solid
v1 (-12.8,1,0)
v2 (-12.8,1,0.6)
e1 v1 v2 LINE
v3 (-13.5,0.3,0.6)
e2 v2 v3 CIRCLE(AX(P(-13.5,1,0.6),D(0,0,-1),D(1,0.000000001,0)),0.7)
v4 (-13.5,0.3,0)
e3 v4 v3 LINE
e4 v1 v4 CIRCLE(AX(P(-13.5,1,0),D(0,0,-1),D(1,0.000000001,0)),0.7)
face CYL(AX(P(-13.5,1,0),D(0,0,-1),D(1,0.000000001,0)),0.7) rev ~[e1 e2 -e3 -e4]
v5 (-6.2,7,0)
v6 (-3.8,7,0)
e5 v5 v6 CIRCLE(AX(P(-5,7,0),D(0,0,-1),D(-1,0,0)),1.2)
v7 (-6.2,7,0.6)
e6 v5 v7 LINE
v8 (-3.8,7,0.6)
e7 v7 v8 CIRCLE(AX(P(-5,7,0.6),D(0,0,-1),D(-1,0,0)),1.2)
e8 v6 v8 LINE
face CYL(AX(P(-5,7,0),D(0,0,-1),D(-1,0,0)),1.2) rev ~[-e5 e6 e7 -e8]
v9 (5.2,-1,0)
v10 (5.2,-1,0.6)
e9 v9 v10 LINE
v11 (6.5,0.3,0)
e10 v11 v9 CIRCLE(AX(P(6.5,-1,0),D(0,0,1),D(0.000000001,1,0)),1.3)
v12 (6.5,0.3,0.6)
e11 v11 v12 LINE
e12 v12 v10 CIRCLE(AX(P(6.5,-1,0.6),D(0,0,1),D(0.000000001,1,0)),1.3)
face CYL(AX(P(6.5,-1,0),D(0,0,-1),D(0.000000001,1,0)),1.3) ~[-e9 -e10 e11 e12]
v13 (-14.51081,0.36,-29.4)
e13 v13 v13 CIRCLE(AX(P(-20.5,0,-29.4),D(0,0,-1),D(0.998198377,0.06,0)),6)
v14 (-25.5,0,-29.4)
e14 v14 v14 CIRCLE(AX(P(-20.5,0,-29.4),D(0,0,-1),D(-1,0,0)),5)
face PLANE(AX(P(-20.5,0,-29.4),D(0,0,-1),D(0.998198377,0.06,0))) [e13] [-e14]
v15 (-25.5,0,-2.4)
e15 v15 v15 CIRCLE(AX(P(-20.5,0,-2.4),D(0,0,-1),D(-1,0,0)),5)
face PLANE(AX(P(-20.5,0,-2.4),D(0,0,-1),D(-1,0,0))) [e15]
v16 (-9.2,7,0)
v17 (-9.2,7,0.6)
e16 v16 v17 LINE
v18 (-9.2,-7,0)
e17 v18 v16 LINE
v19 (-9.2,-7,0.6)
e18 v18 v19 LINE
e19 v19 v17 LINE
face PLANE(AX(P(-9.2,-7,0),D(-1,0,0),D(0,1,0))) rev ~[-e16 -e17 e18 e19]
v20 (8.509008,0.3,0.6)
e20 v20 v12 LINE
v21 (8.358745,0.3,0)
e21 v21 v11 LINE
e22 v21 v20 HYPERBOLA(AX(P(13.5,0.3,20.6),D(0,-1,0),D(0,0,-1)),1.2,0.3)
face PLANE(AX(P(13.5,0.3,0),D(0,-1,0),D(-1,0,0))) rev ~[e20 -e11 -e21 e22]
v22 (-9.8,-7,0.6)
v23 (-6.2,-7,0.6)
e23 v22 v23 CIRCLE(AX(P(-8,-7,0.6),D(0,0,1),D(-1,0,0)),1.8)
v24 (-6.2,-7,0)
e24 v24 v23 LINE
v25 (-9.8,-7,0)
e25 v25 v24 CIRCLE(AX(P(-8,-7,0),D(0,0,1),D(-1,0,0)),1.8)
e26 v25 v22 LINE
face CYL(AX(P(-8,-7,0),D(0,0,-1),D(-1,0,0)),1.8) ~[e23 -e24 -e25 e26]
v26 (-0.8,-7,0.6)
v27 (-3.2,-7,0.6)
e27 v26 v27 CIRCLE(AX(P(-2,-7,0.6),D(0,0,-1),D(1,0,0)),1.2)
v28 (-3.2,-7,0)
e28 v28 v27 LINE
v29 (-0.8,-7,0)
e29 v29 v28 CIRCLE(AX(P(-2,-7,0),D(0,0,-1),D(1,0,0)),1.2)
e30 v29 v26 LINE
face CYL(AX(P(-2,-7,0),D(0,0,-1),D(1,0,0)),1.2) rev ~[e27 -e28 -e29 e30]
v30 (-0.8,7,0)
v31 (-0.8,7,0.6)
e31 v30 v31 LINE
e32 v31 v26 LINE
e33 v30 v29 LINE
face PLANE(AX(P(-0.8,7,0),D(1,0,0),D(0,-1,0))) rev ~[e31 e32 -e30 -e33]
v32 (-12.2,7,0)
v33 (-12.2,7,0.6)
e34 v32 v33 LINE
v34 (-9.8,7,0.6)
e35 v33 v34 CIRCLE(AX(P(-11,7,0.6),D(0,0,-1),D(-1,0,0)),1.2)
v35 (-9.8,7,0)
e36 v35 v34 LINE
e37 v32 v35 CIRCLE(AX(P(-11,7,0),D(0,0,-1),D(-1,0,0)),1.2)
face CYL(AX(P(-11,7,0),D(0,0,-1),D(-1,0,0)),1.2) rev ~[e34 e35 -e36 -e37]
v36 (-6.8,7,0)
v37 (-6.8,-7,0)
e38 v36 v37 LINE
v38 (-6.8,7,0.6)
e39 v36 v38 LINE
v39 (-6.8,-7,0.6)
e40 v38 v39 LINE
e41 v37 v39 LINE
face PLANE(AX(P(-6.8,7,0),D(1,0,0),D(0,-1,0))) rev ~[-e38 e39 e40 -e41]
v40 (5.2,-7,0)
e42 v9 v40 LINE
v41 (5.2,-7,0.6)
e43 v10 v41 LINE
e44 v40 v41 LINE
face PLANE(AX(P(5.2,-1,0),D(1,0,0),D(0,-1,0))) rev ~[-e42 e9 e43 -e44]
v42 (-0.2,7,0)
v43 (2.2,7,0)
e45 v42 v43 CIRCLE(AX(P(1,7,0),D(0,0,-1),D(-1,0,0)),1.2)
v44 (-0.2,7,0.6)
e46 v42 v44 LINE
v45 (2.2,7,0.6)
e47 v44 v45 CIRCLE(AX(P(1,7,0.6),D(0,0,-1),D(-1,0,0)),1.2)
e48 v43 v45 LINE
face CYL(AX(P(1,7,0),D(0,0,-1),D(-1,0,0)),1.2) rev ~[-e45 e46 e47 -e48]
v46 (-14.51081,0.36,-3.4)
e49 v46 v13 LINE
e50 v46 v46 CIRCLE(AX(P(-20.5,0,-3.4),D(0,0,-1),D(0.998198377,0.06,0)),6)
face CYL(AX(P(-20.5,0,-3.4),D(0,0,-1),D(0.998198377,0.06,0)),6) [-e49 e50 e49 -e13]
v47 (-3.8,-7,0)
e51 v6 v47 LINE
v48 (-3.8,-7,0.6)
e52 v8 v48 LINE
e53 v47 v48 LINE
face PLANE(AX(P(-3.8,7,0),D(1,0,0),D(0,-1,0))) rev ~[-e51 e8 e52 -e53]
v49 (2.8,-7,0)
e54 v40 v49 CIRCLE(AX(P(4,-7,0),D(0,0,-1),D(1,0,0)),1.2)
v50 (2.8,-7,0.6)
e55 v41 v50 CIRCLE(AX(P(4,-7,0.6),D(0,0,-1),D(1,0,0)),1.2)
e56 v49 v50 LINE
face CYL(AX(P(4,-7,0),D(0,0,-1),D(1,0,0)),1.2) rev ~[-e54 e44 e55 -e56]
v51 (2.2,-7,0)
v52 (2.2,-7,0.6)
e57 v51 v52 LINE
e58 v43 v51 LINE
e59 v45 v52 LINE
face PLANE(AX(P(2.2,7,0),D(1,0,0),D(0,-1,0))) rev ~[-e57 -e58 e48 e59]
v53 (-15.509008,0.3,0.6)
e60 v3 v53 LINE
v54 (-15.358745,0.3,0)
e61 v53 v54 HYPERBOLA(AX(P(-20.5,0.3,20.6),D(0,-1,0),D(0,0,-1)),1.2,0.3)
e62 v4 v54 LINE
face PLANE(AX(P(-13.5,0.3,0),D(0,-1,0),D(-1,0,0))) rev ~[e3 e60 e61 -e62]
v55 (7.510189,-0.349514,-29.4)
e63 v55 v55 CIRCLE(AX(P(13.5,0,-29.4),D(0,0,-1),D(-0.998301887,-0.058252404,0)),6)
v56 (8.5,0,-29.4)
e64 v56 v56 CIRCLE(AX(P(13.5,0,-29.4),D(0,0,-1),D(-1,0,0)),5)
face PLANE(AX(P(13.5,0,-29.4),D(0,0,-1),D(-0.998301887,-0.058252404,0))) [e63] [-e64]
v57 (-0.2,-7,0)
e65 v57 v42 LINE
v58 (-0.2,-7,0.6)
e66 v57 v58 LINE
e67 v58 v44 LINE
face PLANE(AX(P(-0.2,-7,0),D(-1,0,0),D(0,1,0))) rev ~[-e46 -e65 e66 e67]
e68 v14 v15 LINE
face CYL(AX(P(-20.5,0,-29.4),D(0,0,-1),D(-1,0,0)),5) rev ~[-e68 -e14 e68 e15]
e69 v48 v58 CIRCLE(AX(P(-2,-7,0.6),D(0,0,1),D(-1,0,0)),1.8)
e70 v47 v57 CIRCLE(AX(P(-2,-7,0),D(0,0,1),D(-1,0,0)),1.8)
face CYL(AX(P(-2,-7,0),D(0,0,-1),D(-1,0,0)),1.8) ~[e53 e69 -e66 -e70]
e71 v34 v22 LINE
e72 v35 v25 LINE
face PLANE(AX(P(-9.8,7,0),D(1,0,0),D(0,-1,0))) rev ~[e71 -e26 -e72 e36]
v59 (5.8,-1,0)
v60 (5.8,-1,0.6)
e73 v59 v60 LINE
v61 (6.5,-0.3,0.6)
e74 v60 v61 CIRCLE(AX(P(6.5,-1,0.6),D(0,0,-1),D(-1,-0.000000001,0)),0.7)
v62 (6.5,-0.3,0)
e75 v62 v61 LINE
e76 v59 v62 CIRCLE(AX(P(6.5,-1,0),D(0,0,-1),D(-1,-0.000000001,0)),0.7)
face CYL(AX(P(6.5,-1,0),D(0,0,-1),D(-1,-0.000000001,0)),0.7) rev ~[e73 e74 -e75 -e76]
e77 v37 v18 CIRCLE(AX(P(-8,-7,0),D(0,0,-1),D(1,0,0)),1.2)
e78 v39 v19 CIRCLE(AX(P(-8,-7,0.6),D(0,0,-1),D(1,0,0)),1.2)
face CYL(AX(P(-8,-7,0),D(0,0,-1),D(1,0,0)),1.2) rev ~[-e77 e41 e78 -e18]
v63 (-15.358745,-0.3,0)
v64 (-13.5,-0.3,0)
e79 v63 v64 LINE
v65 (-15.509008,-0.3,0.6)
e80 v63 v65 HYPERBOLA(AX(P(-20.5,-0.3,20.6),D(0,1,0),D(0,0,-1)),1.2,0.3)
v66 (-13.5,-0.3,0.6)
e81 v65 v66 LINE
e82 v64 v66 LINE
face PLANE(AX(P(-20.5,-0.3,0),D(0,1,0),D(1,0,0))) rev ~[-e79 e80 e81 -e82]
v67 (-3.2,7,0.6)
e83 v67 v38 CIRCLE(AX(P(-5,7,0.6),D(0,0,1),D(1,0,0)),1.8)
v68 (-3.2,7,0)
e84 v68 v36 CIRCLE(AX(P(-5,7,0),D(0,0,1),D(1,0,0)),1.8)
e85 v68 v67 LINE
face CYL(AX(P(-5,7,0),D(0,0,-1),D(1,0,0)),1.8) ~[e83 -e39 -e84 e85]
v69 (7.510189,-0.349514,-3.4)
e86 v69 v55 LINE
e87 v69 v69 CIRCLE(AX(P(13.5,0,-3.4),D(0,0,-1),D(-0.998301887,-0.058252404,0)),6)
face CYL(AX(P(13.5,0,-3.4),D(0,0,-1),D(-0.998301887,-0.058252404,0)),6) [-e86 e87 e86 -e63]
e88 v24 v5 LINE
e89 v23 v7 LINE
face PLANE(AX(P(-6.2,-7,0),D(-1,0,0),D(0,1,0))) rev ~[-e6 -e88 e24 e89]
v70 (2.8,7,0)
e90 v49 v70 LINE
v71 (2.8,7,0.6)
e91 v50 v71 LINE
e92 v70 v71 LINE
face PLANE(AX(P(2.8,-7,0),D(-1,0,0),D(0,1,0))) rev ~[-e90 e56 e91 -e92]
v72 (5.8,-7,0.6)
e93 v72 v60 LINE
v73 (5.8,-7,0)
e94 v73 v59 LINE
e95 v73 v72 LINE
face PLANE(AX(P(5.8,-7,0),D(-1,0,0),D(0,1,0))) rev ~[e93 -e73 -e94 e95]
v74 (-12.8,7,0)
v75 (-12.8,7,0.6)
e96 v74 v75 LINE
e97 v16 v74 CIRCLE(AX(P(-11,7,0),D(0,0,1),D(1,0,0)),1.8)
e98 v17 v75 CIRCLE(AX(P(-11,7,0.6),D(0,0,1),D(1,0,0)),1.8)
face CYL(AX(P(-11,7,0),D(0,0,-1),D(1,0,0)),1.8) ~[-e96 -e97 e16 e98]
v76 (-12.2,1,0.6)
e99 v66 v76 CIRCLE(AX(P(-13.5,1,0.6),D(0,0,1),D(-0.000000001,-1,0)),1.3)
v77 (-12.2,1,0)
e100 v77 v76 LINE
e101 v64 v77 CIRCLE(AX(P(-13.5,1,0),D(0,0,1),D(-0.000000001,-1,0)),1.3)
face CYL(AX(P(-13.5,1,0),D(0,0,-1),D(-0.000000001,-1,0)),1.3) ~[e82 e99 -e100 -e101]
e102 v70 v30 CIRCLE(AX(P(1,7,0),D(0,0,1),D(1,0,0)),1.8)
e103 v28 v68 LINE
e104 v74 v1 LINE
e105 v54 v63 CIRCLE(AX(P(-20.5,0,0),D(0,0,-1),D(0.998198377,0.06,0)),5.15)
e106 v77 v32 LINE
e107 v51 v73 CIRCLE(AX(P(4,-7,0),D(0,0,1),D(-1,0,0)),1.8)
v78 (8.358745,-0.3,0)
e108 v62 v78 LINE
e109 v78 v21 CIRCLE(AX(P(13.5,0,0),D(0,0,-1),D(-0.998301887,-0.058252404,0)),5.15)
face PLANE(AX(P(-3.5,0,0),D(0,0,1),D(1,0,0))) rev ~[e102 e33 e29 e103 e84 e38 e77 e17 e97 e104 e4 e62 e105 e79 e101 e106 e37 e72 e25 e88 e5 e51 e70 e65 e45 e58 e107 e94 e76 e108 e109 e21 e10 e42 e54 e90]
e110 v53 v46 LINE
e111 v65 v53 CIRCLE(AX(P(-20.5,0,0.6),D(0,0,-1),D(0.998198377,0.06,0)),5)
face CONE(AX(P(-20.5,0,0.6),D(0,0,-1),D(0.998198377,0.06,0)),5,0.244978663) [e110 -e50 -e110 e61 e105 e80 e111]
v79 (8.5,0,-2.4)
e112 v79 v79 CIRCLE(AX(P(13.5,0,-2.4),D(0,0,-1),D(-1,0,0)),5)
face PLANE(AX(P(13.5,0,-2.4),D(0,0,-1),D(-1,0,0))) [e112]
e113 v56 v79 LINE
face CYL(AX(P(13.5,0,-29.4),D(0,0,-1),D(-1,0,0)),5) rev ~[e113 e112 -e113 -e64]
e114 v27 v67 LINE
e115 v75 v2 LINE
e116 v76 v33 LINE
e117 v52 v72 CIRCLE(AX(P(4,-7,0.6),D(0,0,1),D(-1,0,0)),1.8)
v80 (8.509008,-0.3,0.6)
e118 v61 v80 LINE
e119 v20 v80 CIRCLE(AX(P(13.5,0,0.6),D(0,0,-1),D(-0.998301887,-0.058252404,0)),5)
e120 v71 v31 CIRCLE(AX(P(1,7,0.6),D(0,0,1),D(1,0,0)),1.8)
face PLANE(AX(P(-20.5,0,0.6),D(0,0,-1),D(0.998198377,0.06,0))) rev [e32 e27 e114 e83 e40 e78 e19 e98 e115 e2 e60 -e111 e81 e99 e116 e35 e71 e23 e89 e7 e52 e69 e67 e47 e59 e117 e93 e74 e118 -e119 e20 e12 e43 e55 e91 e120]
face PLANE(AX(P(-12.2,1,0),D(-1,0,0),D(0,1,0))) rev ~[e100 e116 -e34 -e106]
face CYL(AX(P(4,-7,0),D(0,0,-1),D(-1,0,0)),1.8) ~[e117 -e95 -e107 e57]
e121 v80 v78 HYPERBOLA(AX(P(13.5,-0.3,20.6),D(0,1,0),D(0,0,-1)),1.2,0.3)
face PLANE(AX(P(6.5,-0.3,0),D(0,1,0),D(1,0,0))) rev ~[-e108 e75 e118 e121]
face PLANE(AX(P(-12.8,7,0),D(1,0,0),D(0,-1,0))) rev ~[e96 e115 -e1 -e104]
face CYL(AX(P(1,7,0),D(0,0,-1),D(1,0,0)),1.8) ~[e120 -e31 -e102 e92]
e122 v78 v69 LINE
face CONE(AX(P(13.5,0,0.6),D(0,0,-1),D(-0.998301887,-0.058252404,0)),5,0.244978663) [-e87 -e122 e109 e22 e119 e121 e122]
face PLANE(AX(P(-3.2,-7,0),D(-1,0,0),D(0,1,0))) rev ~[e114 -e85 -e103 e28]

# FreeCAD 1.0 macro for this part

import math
import FreeCAD as App
import Part
import Sketcher
from FreeCAD import Vector
Q = App.Units.Quantity


def add_polygon(sketch, points):
    """Adds a closed chain of lines whose ends are joined by coincident constraints."""
    first, n = sketch.GeometryCount, len(points)
    for a, b in zip(points, points[1:] + points[:1]):
        sketch.addGeometry(Part.LineSegment(App.Vector(*a, 0), App.Vector(*b, 0)), False)
    for i in range(n):
        sketch.addConstraint(Sketcher.Constraint("Coincident", first + i, 2, first + (i + 1) % n, 1))

doc = App.newDocument("Part")
body = doc.addObject("PartDesign::Body", "Body")

# Sketch on XY plane
sketch1 = doc.addObject("Sketcher::SketchObject", "Sketch")
body.addObject(sketch1)
sketch1.AttachmentSupport = (doc.XY_Plane, [""])
sketch1.MapMode = "FlatFace"
sketch1.addGeometry([
    Part.LineSegment(Vector(-20.5, -0.3, 0), Vector(-13.5, -0.3, 0)),  # 0
    Part.ArcOfCircle(Part.Circle(Vector(-13.5, 1, 0), Vector(0, 0, 1), 1.3), math.radians(-90), math.radians(0)),  # 1
    Part.LineSegment(Vector(-12.2, 1, 0), Vector(-12.2, 7, 0)),  # 2
    Part.ArcOfCircle(Part.Circle(Vector(-11, 7, 0), Vector(0, 0, 1), 1.2), math.radians(0), math.radians(180)),  # 3
    Part.LineSegment(Vector(-9.8, 7, 0), Vector(-9.8, -7, 0)),  # 4
    Part.ArcOfCircle(Part.Circle(Vector(-8, -7, 0), Vector(0, 0, 1), 1.8), math.radians(180), math.radians(360)),  # 5
    Part.LineSegment(Vector(-6.2, -7, 0), Vector(-6.2, 7, 0)),  # 6
    Part.ArcOfCircle(Part.Circle(Vector(-5, 7, 0), Vector(0, 0, 1), 1.2), math.radians(0), math.radians(180)),  # 7
    Part.LineSegment(Vector(-3.8, 7, 0), Vector(-3.8, -7, 0)),  # 8
    Part.ArcOfCircle(Part.Circle(Vector(-2, -7, 0), Vector(0, 0, 1), 1.8), math.radians(180), math.radians(360)),  # 9
    Part.LineSegment(Vector(-0.2, -7, 0), Vector(-0.2, 7, 0)),  # 10
    Part.ArcOfCircle(Part.Circle(Vector(1, 7, 0), Vector(0, 0, 1), 1.2), math.radians(0), math.radians(180)),  # 11
    Part.LineSegment(Vector(2.2, 7, 0), Vector(2.2, -7, 0)),  # 12
    Part.ArcOfCircle(Part.Circle(Vector(4, -7, 0), Vector(0, 0, 1), 1.8), math.radians(180), math.radians(360)),  # 13
    Part.LineSegment(Vector(5.8, -7, 0), Vector(5.8, -1, 0)),  # 14
    Part.ArcOfCircle(Part.Circle(Vector(6.5, -1, 0), Vector(0, 0, 1), 0.7), math.radians(90), math.radians(180)),  # 15
    Part.LineSegment(Vector(6.5, -0.3, 0), Vector(13.5, -0.3, 0)),  # 16
    Part.ArcOfCircle(Part.Circle(Vector(13.5, 0, 0), Vector(0, 0, 1), 0.3), math.radians(-90), math.radians(90)),  # 17
    Part.LineSegment(Vector(13.5, 0.3, 0), Vector(6.5, 0.3, 0)),  # 18
    Part.ArcOfCircle(Part.Circle(Vector(6.5, -1, 0), Vector(0, 0, 1), 1.3), math.radians(90), math.radians(180)),  # 19
    Part.LineSegment(Vector(5.2, -1, 0), Vector(5.2, -7, 0)),  # 20
    Part.ArcOfCircle(Part.Circle(Vector(4, -7, 0), Vector(0, 0, 1), 1.2), math.radians(180), math.radians(360)),  # 21
    Part.LineSegment(Vector(2.8, -7, 0), Vector(2.8, 7, 0)),  # 22
    Part.ArcOfCircle(Part.Circle(Vector(1, 7, 0), Vector(0, 0, 1), 1.8), math.radians(0), math.radians(180)),  # 23
    Part.LineSegment(Vector(-0.8, 7, 0), Vector(-0.8, -7, 0)),  # 24
    Part.ArcOfCircle(Part.Circle(Vector(-2, -7, 0), Vector(0, 0, 1), 1.2), math.radians(180), math.radians(360)),  # 25
    Part.LineSegment(Vector(-3.2, -7, 0), Vector(-3.2, 7, 0)),  # 26
    Part.ArcOfCircle(Part.Circle(Vector(-5, 7, 0), Vector(0, 0, 1), 1.8), math.radians(0), math.radians(180)),  # 27
    Part.LineSegment(Vector(-6.8, 7, 0), Vector(-6.8, -7, 0)),  # 28
    Part.ArcOfCircle(Part.Circle(Vector(-8, -7, 0), Vector(0, 0, 1), 1.2), math.radians(180), math.radians(360)),  # 29
    Part.LineSegment(Vector(-9.2, -7, 0), Vector(-9.2, 7, 0)),  # 30
    Part.ArcOfCircle(Part.Circle(Vector(-11, 7, 0), Vector(0, 0, 1), 1.8), math.radians(0), math.radians(180)),  # 31
    Part.LineSegment(Vector(-12.8, 7, 0), Vector(-12.8, 1, 0)),  # 32
    Part.ArcOfCircle(Part.Circle(Vector(-13.5, 1, 0), Vector(0, 0, 1), 0.7), math.radians(-90), math.radians(0)),  # 33
    Part.LineSegment(Vector(-13.5, 0.3, 0), Vector(-20.5, 0.3, 0)),  # 34
    Part.ArcOfCircle(Part.Circle(Vector(-20.5, 0, 0), Vector(0, 0, 1), 0.3), math.radians(90), math.radians(270)),  # 35
], False)
sketch1.addConstraint([
    Sketcher.Constraint("Tangent", 0, 2, 1, 1),
    Sketcher.Constraint("Tangent", 1, 2, 2, 1),
    Sketcher.Constraint("Tangent", 2, 2, 3, 2),
    Sketcher.Constraint("Tangent", 3, 1, 4, 1),
    Sketcher.Constraint("Tangent", 4, 2, 5, 1),
    Sketcher.Constraint("Tangent", 5, 2, 6, 1),
    Sketcher.Constraint("Tangent", 6, 2, 7, 2),
    Sketcher.Constraint("Tangent", 7, 1, 8, 1),
    Sketcher.Constraint("Tangent", 8, 2, 9, 1),
    Sketcher.Constraint("Tangent", 9, 2, 10, 1),
    Sketcher.Constraint("Tangent", 10, 2, 11, 2),
    Sketcher.Constraint("Tangent", 11, 1, 12, 1),
    Sketcher.Constraint("Tangent", 12, 2, 13, 1),
    Sketcher.Constraint("Tangent", 13, 2, 14, 1),
    Sketcher.Constraint("Tangent", 14, 2, 15, 2),
    Sketcher.Constraint("Tangent", 15, 1, 16, 1),
    Sketcher.Constraint("Tangent", 16, 2, 17, 1),
    Sketcher.Constraint("Tangent", 17, 2, 18, 1),
    Sketcher.Constraint("Tangent", 18, 2, 19, 1),
    Sketcher.Constraint("Tangent", 19, 2, 20, 1),
    Sketcher.Constraint("Tangent", 20, 2, 21, 2),
    Sketcher.Constraint("Tangent", 21, 1, 22, 1),
    Sketcher.Constraint("Tangent", 22, 2, 23, 1),
    Sketcher.Constraint("Tangent", 23, 2, 24, 1),
    Sketcher.Constraint("Tangent", 24, 2, 25, 2),
    Sketcher.Constraint("Tangent", 25, 1, 26, 1),
    Sketcher.Constraint("Tangent", 26, 2, 27, 1),
    Sketcher.Constraint("Tangent", 27, 2, 28, 1),
    Sketcher.Constraint("Tangent", 28, 2, 29, 2),
    Sketcher.Constraint("Tangent", 29, 1, 30, 1),
    Sketcher.Constraint("Tangent", 30, 2, 31, 1),
    Sketcher.Constraint("Tangent", 31, 2, 32, 1),
    Sketcher.Constraint("Tangent", 32, 2, 33, 2),
    Sketcher.Constraint("Tangent", 33, 1, 34, 1),
    Sketcher.Constraint("Tangent", 34, 2, 35, 1),
    Sketcher.Constraint("Tangent", 35, 2, 0, 1),
    Sketcher.Constraint("Horizontal", 0),
    Sketcher.Constraint("Vertical", 2),
    Sketcher.Constraint("Vertical", 4),
    Sketcher.Constraint("Vertical", 6),
    Sketcher.Constraint("Vertical", 8),
    Sketcher.Constraint("Vertical", 10),
    Sketcher.Constraint("Vertical", 12),
    Sketcher.Constraint("Vertical", 14),
    Sketcher.Constraint("Horizontal", 16),
    Sketcher.Constraint("Horizontal", 18),
    Sketcher.Constraint("Vertical", 20),
    Sketcher.Constraint("Vertical", 22),
    Sketcher.Constraint("Vertical", 24),
    Sketcher.Constraint("Vertical", 26),
    Sketcher.Constraint("Vertical", 28),
    Sketcher.Constraint("Vertical", 30),
    Sketcher.Constraint("Vertical", 32),
    Sketcher.Constraint("Horizontal", 34),
    Sketcher.Constraint("Coincident", 19, 3, 15, 3),
    Sketcher.Constraint("Coincident", 21, 3, 13, 3),
    Sketcher.Constraint("Coincident", 23, 3, 11, 3),
    Sketcher.Constraint("Coincident", 25, 3, 9, 3),
    Sketcher.Constraint("Coincident", 27, 3, 7, 3),
    Sketcher.Constraint("Coincident", 29, 3, 5, 3),
    Sketcher.Constraint("Coincident", 31, 3, 3, 3),
    Sketcher.Constraint("Coincident", 33, 3, 1, 3),
    Sketcher.Constraint("Equal", 3, 7),
    Sketcher.Constraint("Equal", 5, 9),
    Sketcher.Constraint("Equal", 7, 11),
    Sketcher.Constraint("Equal", 9, 13),
    Sketcher.Constraint("Equal", 1, 19),
    Sketcher.Constraint("Equal", 11, 21),
    Sketcher.Constraint("Symmetric", 0, 2, 17, 2, -1, 1),
    Sketcher.Constraint("PointOnObject", 17, 3, -1),
    Sketcher.Constraint("Horizontal", 3, 3, 7, 3),
    Sketcher.Constraint("Horizontal", 5, 3, 9, 3),
    Sketcher.Constraint("Horizontal", 7, 3, 11, 3),
    Sketcher.Constraint("Horizontal", 9, 3, 13, 3),
    Sketcher.Constraint("Equal", 0, 16),
    Sketcher.Constraint("Equal", 2, 14),
    Sketcher.Constraint("Radius", 1, Q("1.3 mm")),
    Sketcher.Constraint("Radius", 3, Q("1.2 mm")),
    Sketcher.Constraint("Radius", 5, Q("1.8 mm")),
    Sketcher.Constraint("DistanceX", 0, 1, 0, 2, Q("7 mm")),
    Sketcher.Constraint("DistanceY", 2, 1, 2, 2, Q("6 mm")),
])
pad1 = doc.addObject("PartDesign::Pad", "Pad")
body.addObject(pad1)
pad1.Profile = sketch1
pad1.Length = 0.6

# Sketch on XZ plane
sketch2 = doc.addObject("Sketcher::SketchObject", "Sketch001")
body.addObject(sketch2)
sketch2.AttachmentSupport = (doc.XZ_Plane, [""])
sketch2.MapMode = "FlatFace"
add_polygon(sketch2, [(-25.5, 0.6), (-20.5, 0.6), (-20.5, -29.4), (-26.5, -29.4), (-26.5, -3.4)])  # lines 0-4
sketch2.addGeometry(Part.LineSegment(Vector(-20.5, 0.6, 0), Vector(-20.5, -29.4, 0)), True)  # axis
sketch2.addConstraint([
    Sketcher.Constraint("Horizontal", 0),
    Sketcher.Constraint("Vertical", 1),
    Sketcher.Constraint("Horizontal", 2),
    Sketcher.Constraint("Vertical", 3),
    Sketcher.Constraint("Vertical", 5),
    Sketcher.Constraint("Coincident", 5, 1, 0, 2),
    Sketcher.Constraint("Horizontal", 2, 2, 5, 2),
    Sketcher.Constraint("DistanceX", 0, 1, 0, 2, Q("5 mm")),
    Sketcher.Constraint("DistanceX", 2, 2, 2, 1, Q("6 mm")),
    Sketcher.Constraint("DistanceY", 1, 2, 1, 1, Q("30 mm")),
    Sketcher.Constraint("DistanceY", 3, 1, 3, 2, Q("26 mm")),
    Sketcher.Constraint("DistanceX", 0, 2, -1, 1, Q("20.5 mm")),
    Sketcher.Constraint("DistanceY", -1, 1, 0, 2, Q("0.6 mm")),
])
revolution = doc.addObject("PartDesign::Revolution", "Revolution")
body.addObject(revolution)
revolution.Profile = sketch2
revolution.ReferenceAxis = (sketch2, ["Axis0"])
revolution.Angle = 360

# Sketch on XZ plane
sketch3 = doc.addObject("Sketcher::SketchObject", "Sketch002")
body.addObject(sketch3)
sketch3.AttachmentSupport = (doc.XZ_Plane, [""])
sketch3.MapMode = "FlatFace"
add_polygon(sketch3, [(13.5, 0.6), (18.5, 0.6), (19.5, -3.4), (19.5, -29.4), (13.5, -29.4)])  # lines 0-4
sketch3.addGeometry(Part.LineSegment(Vector(13.5, 0.6, 0), Vector(13.5, -29.4, 0)), True)  # axis
sketch3.addConstraint([
    Sketcher.Constraint("Horizontal", 0),
    Sketcher.Constraint("Vertical", 2),
    Sketcher.Constraint("Horizontal", 3),
    Sketcher.Constraint("Vertical", 4),
    Sketcher.Constraint("Vertical", 5),
    Sketcher.Constraint("Coincident", 5, 1, 4, 2),
    Sketcher.Constraint("Horizontal", 2, 2, 5, 2),
    Sketcher.Constraint("DistanceX", 0, 1, 0, 2, Q("5 mm")),
    Sketcher.Constraint("DistanceX", 3, 2, 3, 1, Q("6 mm")),
    Sketcher.Constraint("DistanceY", 2, 2, 2, 1, Q("26 mm")),
    Sketcher.Constraint("DistanceY", 4, 1, 4, 2, Q("30 mm")),
    Sketcher.Constraint("DistanceX", -1, 1, 0, 2, Q("18.5 mm")),
    Sketcher.Constraint("DistanceY", -1, 1, 0, 2, Q("0.6 mm")),
])
revolution2 = doc.addObject("PartDesign::Revolution", "Revolution001")
body.addObject(revolution2)
revolution2.Profile = sketch3
revolution2.ReferenceAxis = (sketch3, ["Axis0"])
revolution2.Angle = 360

# Sketch on XY plane
sketch4 = doc.addObject("Sketcher::SketchObject", "Sketch003")
body.addObject(sketch4)
sketch4.AttachmentSupport = (doc.XY_Plane, [""])
sketch4.MapMode = "FlatFace"
sketch4.AttachmentOffset = App.Placement(Vector(0, 0, -29.4), App.Rotation())
sketch4.addGeometry([
    Part.Circle(Vector(14, 0, 0), Vector(0, 0, 1), 5),
    Part.Circle(Vector(-20, 0, 0), Vector(0, 0, 1), 5),
], False)
sketch4.addConstraint([
    Sketcher.Constraint("Equal", 0, 1),
    Sketcher.Constraint("PointOnObject", 0, 3, -1),
    Sketcher.Constraint("PointOnObject", 1, 3, -1),
    Sketcher.Constraint("Diameter", 0, Q("10 mm")),
    Sketcher.Constraint("DistanceX", 1, 3, 0, 3, Q("34 mm")),
    Sketcher.Constraint("DistanceX", -1, 1, 0, 3, Q("13.5 mm")),
])
pocket1 = doc.addObject("PartDesign::Pocket", "Pocket")
body.addObject(pocket1)
pocket1.Profile = sketch4
pocket1.Length = 27
pocket1.Reversed = True

doc.recompute()
